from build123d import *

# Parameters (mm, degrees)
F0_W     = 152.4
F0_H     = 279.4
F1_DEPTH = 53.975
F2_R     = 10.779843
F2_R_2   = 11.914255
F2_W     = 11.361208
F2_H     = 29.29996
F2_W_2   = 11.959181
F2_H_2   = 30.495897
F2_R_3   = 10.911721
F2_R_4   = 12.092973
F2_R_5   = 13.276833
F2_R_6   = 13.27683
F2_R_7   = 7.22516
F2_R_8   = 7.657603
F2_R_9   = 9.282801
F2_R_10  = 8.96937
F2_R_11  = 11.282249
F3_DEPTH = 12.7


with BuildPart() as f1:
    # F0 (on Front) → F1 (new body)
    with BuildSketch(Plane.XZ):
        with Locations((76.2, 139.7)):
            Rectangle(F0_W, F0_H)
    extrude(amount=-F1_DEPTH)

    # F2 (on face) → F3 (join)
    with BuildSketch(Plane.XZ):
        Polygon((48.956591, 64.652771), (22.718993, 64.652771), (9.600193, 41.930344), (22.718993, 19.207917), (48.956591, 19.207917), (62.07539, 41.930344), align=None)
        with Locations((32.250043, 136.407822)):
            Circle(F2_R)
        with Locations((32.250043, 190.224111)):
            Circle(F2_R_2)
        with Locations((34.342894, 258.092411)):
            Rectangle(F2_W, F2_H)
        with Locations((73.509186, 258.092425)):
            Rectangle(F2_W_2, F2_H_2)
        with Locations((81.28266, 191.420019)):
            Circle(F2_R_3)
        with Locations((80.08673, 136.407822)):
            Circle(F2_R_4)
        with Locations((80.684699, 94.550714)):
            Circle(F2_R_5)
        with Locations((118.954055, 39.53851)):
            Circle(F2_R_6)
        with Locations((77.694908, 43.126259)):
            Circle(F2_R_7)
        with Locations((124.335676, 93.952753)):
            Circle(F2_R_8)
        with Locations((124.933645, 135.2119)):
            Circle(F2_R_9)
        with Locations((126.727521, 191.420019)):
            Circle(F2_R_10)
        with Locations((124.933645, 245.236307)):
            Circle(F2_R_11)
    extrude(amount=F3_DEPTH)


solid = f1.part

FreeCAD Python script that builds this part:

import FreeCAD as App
import Part
import Sketcher
Q = App.Units.Quantity

doc = App.newDocument("Part")
body = doc.addObject("PartDesign::Body", "Body")

sketch1 = doc.addObject("Sketcher::SketchObject", "Sketch")
body.addObject(sketch1)
sketch1.AttachmentSupport = (doc.XZ_Plane, [""])
sketch1.MapMode = "FlatFace"
sketch1.addGeometry(Part.LineSegment(App.Vector(0, 279, 0), App.Vector(0, 0, 0)), False)
sketch1.addGeometry(Part.LineSegment(App.Vector(0, 0, 0), App.Vector(152, 0, 0)), False)
sketch1.addGeometry(Part.LineSegment(App.Vector(152, 0, 0), App.Vector(152, 279, 0)), False)
sketch1.addGeometry(Part.LineSegment(App.Vector(152, 279, 0), App.Vector(0, 279, 0)), False)
sketch1.addConstraint(Sketcher.Constraint("Coincident", 0, 2, 1, 1))
sketch1.addConstraint(Sketcher.Constraint("Coincident", 1, 2, 2, 1))
sketch1.addConstraint(Sketcher.Constraint("Coincident", 2, 2, 3, 1))
sketch1.addConstraint(Sketcher.Constraint("Coincident", 3, 2, 0, 1))
sketch1.addConstraint(Sketcher.Constraint("Vertical", 0))
sketch1.addConstraint(Sketcher.Constraint("Horizontal", 1))
sketch1.addConstraint(Sketcher.Constraint("Vertical", 2))
sketch1.addConstraint(Sketcher.Constraint("Horizontal", 3))
sketch1.addConstraint(Sketcher.Constraint("Coincident", 0, 2, -1, 1))
sketch1.addConstraint(Sketcher.Constraint("DistanceX", 1, 1, 1, 2, Q("6 in")))
sketch1.addConstraint(Sketcher.Constraint("DistanceY", 0, 2, 0, 1, Q("11 in")))
pad1 = doc.addObject("PartDesign::Pad", "Pad")
body.addObject(pad1)
pad1.Profile = sketch1
pad1.Length = Q("2.125 in")
pad1.Reversed = True

sketch2 = doc.addObject("Sketcher::SketchObject", "Sketch001")
body.addObject(sketch2)
sketch2.AttachmentSupport = (doc.XZ_Plane, [""])
sketch2.MapMode = "FlatFace"
sketch2.addGeometry(Part.LineSegment(App.Vector(49, 65, 0), App.Vector(23, 65, 0)), False)
sketch2.addGeometry(Part.LineSegment(App.Vector(23, 65, 0), App.Vector(10, 42, 0)), False)
sketch2.addGeometry(Part.LineSegment(App.Vector(10, 42, 0), App.Vector(23, 19, 0)), False)
sketch2.addGeometry(Part.LineSegment(App.Vector(23, 19, 0), App.Vector(49, 19, 0)), False)
sketch2.addGeometry(Part.LineSegment(App.Vector(49, 19, 0), App.Vector(62, 42, 0)), False)
sketch2.addGeometry(Part.LineSegment(App.Vector(62, 42, 0), App.Vector(49, 65, 0)), False)
sketch2.addGeometry(Part.Circle(App.Vector(32, 136, 0), App.Vector(0, 0, 1), 11), False)
sketch2.addGeometry(Part.Circle(App.Vector(32, 190, 0), App.Vector(0, 0, 1), 12), False)
sketch2.addGeometry(Part.LineSegment(App.Vector(29, 273, 0), App.Vector(29, 243, 0)), False)
sketch2.addGeometry(Part.LineSegment(App.Vector(29, 243, 0), App.Vector(40, 243, 0)), False)
sketch2.addGeometry(Part.LineSegment(App.Vector(40, 243, 0), App.Vector(40, 273, 0)), False)
sketch2.addGeometry(Part.LineSegment(App.Vector(40, 273, 0), App.Vector(29, 273, 0)), False)
sketch2.addGeometry(Part.LineSegment(App.Vector(68, 273, 0), App.Vector(68, 243, 0)), False)
sketch2.addGeometry(Part.LineSegment(App.Vector(68, 243, 0), App.Vector(79, 243, 0)), False)
sketch2.addGeometry(Part.LineSegment(App.Vector(79, 243, 0), App.Vector(79, 273, 0)), False)
sketch2.addGeometry(Part.LineSegment(App.Vector(79, 273, 0), App.Vector(68, 273, 0)), False)
sketch2.addGeometry(Part.Circle(App.Vector(81, 191, 0), App.Vector(0, 0, 1), 11), False)
sketch2.addGeometry(Part.Circle(App.Vector(80, 136, 0), App.Vector(0, 0, 1), 12), False)
sketch2.addGeometry(Part.Circle(App.Vector(81, 95, 0), App.Vector(0, 0, 1), 13), False)
sketch2.addGeometry(Part.Circle(App.Vector(119, 40, 0), App.Vector(0, 0, 1), 13), False)
sketch2.addGeometry(Part.Circle(App.Vector(78, 43, 0), App.Vector(0, 0, 1), 7), False)
sketch2.addGeometry(Part.Circle(App.Vector(124, 94, 0), App.Vector(0, 0, 1), 8), False)
sketch2.addGeometry(Part.Circle(App.Vector(125, 135, 0), App.Vector(0, 0, 1), 9), False)
sketch2.addGeometry(Part.Circle(App.Vector(127, 191, 0), App.Vector(0, 0, 1), 9), False)
sketch2.addGeometry(Part.Circle(App.Vector(125, 245, 0), App.Vector(0, 0, 1), 11), False)
sketch2.addConstraint(Sketcher.Constraint("Coincident", 0, 2, 1, 1))
sketch2.addConstraint(Sketcher.Constraint("Coincident", 1, 2, 2, 1))
sketch2.addConstraint(Sketcher.Constraint("Coincident", 2, 2, 3, 1))
sketch2.addConstraint(Sketcher.Constraint("Coincident", 3, 2, 4, 1))
sketch2.addConstraint(Sketcher.Constraint("Coincident", 4, 2, 5, 1))
sketch2.addConstraint(Sketcher.Constraint("Coincident", 5, 2, 0, 1))
sketch2.addConstraint(Sketcher.Constraint("Coincident", 8, 2, 9, 1))
sketch2.addConstraint(Sketcher.Constraint("Coincident", 9, 2, 10, 1))
sketch2.addConstraint(Sketcher.Constraint("Coincident", 10, 2, 11, 1))
sketch2.addConstraint(Sketcher.Constraint("Coincident", 11, 2, 8, 1))
sketch2.addConstraint(Sketcher.Constraint("Coincident", 12, 2, 13, 1))
sketch2.addConstraint(Sketcher.Constraint("Coincident", 13, 2, 14, 1))
sketch2.addConstraint(Sketcher.Constraint("Coincident", 14, 2, 15, 1))
sketch2.addConstraint(Sketcher.Constraint("Coincident", 15, 2, 12, 1))
sketch2.addConstraint(Sketcher.Constraint("Horizontal", 0))
sketch2.addConstraint(Sketcher.Constraint("Horizontal", 3))
sketch2.addConstraint(Sketcher.Constraint("Vertical", 8))
sketch2.addConstraint(Sketcher.Constraint("Horizontal", 9))
sketch2.addConstraint(Sketcher.Constraint("Vertical", 10))
sketch2.addConstraint(Sketcher.Constraint("Horizontal", 11))
sketch2.addConstraint(Sketcher.Constraint("Vertical", 12))
sketch2.addConstraint(Sketcher.Constraint("Horizontal", 13))
sketch2.addConstraint(Sketcher.Constraint("Vertical", 14))
sketch2.addConstraint(Sketcher.Constraint("Horizontal", 15))
sketch2.addConstraint(Sketcher.Constraint("Parallel", 1, 4))
sketch2.addConstraint(Sketcher.Constraint("Parallel", 2, 5))
sketch2.addConstraint(Sketcher.Constraint("Horizontal", 6, 3, 17, 3))
sketch2.addConstraint(Sketcher.Constraint("Horizontal", 16, 3, 23, 3))
sketch2.addConstraint(Sketcher.Constraint("Horizontal", 1, 2, 4, 2))
sketch2.addConstraint(Sketcher.Constraint("Vertical", 6, 3, 7, 3))
sketch2.addConstraint(Sketcher.Constraint("Vertical", 22, 3, 24, 3))
sketch2.addConstraint(Sketcher.Constraint("Vertical", 0, 2, 2, 2))
sketch2.addConstraint(Sketcher.Constraint("Vertical", 3, 2, 5, 2))
sketch2.addConstraint(Sketcher.Constraint("Angle", 1, Q("-120.000001 deg")))
sketch2.addConstraint(Sketcher.Constraint("Diameter", 22, 18.565602))
sketch2.addConstraint(Sketcher.Constraint("Diameter", 24, 22.564498))
sketch2.addConstraint(Sketcher.Constraint("Diameter", 7, 23.82851))
sketch2.addConstraint(Sketcher.Constraint("Diameter", 16, 21.823442))
sketch2.addConstraint(Sketcher.Constraint("Diameter", 19, 26.55366))
sketch2.addConstraint(Sketcher.Constraint("Diameter", 20, 14.45032))
sketch2.addConstraint(Sketcher.Constraint("Diameter", 23, 17.93874))
sketch2.addConstraint(Sketcher.Constraint("Diameter", 6, 21.559686))
sketch2.addConstraint(Sketcher.Constraint("Diameter", 17, 24.185946))
sketch2.addConstraint(Sketcher.Constraint("Diameter", 18, 26.553666))
sketch2.addConstraint(Sketcher.Constraint("Diameter", 21, 15.315206))
sketch2.addConstraint(Sketcher.Constraint("DistanceX", 0, 2, 0, 1, 26.237598))
sketch2.addConstraint(Sketcher.Constraint("Distance", 1, 26.237599))
sketch2.addConstraint(Sketcher.Constraint("DistanceX", 13, 1, 13, 2, 11.959181))
sketch2.addConstraint(Sketcher.Constraint("DistanceY", 8, 2, 8, 1, 29.29996))
sketch2.addConstraint(Sketcher.Constraint("DistanceX", -1, 1, 18, 3, 80.684699))
sketch2.addConstraint(Sketcher.Constraint("DistanceY", -1, 1, 22, 3, 135.2119))
sketch2.addConstraint(Sketcher.Constraint("DistanceY", 19, 3, 7, 3, 150.685601))
sketch2.addConstraint(Sketcher.Constraint("DistanceX", 9, 1, 9, 2, 11.361208))
sketch2.addConstraint(Sketcher.Constraint("DistanceY", 12, 2, 12, 1, 30.495897))
sketch2.addConstraint(Sketcher.Constraint("DistanceY", -1, 1, 7, 3, 190.224111))
sketch2.addConstraint(Sketcher.Constraint("DistanceX", -1, 1, 16, 3, 81.28266))
sketch2.addConstraint(Sketcher.Constraint("DistanceY", -1, 1, 16, 3, 191.420019))
sketch2.addConstraint(Sketcher.Constraint("DistanceX", -1, 1, 17, 3, 80.08673))
sketch2.addConstraint(Sketcher.Constraint("DistanceX", -1, 1, 20, 3, 77.694908))
sketch2.addConstraint(Sketcher.Constraint("DistanceY", -1, 1, 20, 3, 43.126259))
sketch2.addConstraint(Sketcher.Constraint("DistanceX", -1, 1, 23, 3, 126.727521))
sketch2.addConstraint(Sketcher.Constraint("DistanceY", -1, 1, 0, 2, 64.652771))
sketch2.addConstraint(Sketcher.Constraint("DistanceX", -1, 1, 3, 2, 48.956591))
sketch2.addConstraint(Sketcher.Constraint("DistanceX", -1, 1, 8, 2, 28.66229))
sketch2.addConstraint(Sketcher.Constraint("DistanceY", -1, 1, 8, 2, 243.442431))
sketch2.addConstraint(Sketcher.Constraint("DistanceY", 6, 3, 7, 3, 53.816289))
sketch2.addConstraint(Sketcher.Constraint("DistanceY", 18, 3, 17, 3, 41.857108))
sketch2.addConstraint(Sketcher.Constraint("DistanceY", 21, 3, 18, 3, 0.597961))
sketch2.addConstraint(Sketcher.Constraint("DistanceX", 19, 3, 21, 3, 5.381621))
sketch2.addConstraint(Sketcher.Constraint("DistanceX", 20, 3, 21, 3, 46.640768))
sketch2.addConstraint(Sketcher.Constraint("DistanceX", 21, 3, 22, 3, 0.597969))
sketch2.addConstraint(Sketcher.Constraint("DistanceY", 23, 3, 24, 3, 53.816288))
sketch2.addConstraint(Sketcher.Constraint("DistanceX", 0, 2, 6, 3, 9.53105))
sketch2.addConstraint(Sketcher.Constraint("DistanceX", 9, 2, 13, 2, 39.465279))
sketch2.addConstraint(Sketcher.Constraint("DistanceY", 13, 2, 24, 3, 2.39183))
pad2 = doc.addObject("PartDesign::Pad", "Pad001")
body.addObject(pad2)
pad2.Profile = sketch2
pad2.Length = Q("0.5 in")

doc.recompute()
